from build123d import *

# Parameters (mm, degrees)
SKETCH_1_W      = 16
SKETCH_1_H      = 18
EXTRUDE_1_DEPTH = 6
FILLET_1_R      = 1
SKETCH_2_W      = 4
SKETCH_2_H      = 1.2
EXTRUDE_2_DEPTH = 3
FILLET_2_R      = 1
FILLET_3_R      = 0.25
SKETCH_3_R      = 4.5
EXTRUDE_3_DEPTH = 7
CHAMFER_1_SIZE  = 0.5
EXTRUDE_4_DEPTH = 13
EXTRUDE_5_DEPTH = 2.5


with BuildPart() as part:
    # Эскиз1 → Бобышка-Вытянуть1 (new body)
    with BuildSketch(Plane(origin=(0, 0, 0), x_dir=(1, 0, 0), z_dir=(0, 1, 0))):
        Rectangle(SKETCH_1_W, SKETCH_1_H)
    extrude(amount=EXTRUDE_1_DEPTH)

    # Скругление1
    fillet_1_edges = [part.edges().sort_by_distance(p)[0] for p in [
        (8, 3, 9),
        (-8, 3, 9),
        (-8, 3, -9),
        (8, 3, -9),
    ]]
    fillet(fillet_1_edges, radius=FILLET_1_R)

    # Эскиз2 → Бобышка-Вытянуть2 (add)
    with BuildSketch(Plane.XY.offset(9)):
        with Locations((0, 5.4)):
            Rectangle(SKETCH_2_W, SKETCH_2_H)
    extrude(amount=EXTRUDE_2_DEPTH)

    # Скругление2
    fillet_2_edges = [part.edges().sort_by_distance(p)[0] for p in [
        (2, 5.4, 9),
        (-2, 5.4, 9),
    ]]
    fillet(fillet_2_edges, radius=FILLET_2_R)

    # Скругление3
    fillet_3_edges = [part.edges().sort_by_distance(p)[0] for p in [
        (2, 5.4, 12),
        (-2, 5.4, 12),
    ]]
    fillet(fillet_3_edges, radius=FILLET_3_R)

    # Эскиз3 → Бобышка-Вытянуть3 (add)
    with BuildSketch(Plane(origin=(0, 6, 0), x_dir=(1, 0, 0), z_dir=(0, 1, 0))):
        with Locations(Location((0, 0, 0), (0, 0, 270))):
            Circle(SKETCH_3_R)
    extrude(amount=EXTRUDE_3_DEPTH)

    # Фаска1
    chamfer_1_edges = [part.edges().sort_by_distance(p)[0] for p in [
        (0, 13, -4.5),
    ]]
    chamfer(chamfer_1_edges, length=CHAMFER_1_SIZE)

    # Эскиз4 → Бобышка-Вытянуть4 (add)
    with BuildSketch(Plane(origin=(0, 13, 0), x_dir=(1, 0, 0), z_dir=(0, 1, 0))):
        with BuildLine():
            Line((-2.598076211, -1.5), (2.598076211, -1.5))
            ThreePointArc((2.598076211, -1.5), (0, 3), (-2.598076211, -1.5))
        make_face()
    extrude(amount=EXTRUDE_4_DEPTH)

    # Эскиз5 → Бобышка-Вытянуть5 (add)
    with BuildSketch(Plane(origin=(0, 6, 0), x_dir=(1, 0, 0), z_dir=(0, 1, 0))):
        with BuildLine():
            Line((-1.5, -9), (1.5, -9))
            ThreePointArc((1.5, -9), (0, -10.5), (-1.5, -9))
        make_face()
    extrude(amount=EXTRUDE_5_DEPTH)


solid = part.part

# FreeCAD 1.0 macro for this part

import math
import FreeCAD as App
import Part
import Sketcher
from FreeCAD import Vector


def edges_at(feature, points):
    """Names of the edges that pass closest to the given points."""
    edges = feature.Shape.Edges
    near = lambda p: min(range(len(edges)), key=lambda i: edges[i].distToShape(Part.Vertex(*p))[0])
    return sorted({f"Edge{near(p) + 1}" for p in points})


def add_polygon(sketch, points):
    """Adds a closed chain of lines whose ends are joined by coincident constraints."""
    first, n = sketch.GeometryCount, len(points)
    for a, b in zip(points, points[1:] + points[:1]):
        sketch.addGeometry(Part.LineSegment(App.Vector(*a, 0), App.Vector(*b, 0)), False)
    for i in range(n):
        sketch.addConstraint(Sketcher.Constraint("Coincident", first + i, 2, first + (i + 1) % n, 1))

doc = App.newDocument("Part")
body = doc.addObject("PartDesign::Body", "Body")

sketch1 = body.newObject("Sketcher::SketchObject", "Sketch")
sketch1.AttachmentSupport = (doc.getObject("XZ_Plane"), [""])
sketch1.MapMode = "FlatFace"
add_polygon(sketch1, [(-8, -9), (-8, 9), (8, 9), (8, -9)])
sketch1.addConstraint([
    Sketcher.Constraint("Vertical", 0),
    Sketcher.Constraint("Horizontal", 1),
    Sketcher.Constraint("Vertical", 2),
    Sketcher.Constraint("Horizontal", 3),
    Sketcher.Constraint("Symmetric", 0, 2, 2, 2, -1, 1),
    Sketcher.Constraint("DistanceX", 1, 1, 1, 2, 16.0),
    Sketcher.Constraint("DistanceY", 0, 1, 0, 2, 18.0),
])
pad1 = body.newObject("PartDesign::Pad", "Pad")
pad1.Profile = sketch1
pad1.Length = 6
pad1.Reversed = True
doc.recompute()

fillet = body.newObject("PartDesign::Fillet", "Fillet")
fillet.Base = (pad1, edges_at(pad1, [
    (8, 3, 9),
    (-8, 3, 9),
    (-8, 3, -9),
    (8, 3, -9),
]))
fillet.Radius = 1

sketch2 = body.newObject("Sketcher::SketchObject", "Sketch001")
sketch2.AttachmentSupport = (doc.getObject("XY_Plane"), [""])
sketch2.MapMode = "FlatFace"
sketch2.AttachmentOffset = App.Placement(Vector(0, 0, 9), App.Rotation())
add_polygon(sketch2, [(-2, 6), (-2, 4.8), (2, 4.8), (2, 6)])
sketch2.addConstraint([
    Sketcher.Constraint("Vertical", 0),
    Sketcher.Constraint("Horizontal", 1),
    Sketcher.Constraint("Vertical", 2),
    Sketcher.Constraint("Horizontal", 3),
    Sketcher.Constraint("DistanceX", 1, 1, 1, 2, 4.0),
    Sketcher.Constraint("DistanceY", 0, 2, 0, 1, 1.2),
    Sketcher.Constraint("DistanceX", 0, 2, -1, 1, 2.0),
    Sketcher.Constraint("DistanceY", -1, 1, 2, 2, 6.0),
])
pad2 = body.newObject("PartDesign::Pad", "Pad001")
pad2.Profile = sketch2
pad2.Length = 3
doc.recompute()

fillet2 = body.newObject("PartDesign::Fillet", "Fillet001")
fillet2.Base = (pad2, edges_at(pad2, [(2, 5.4, 9), (-2, 5.4, 9)]))
fillet2.Radius = 1
doc.recompute()

fillet3 = body.newObject("PartDesign::Fillet", "Fillet002")
fillet3.Base = (fillet2, edges_at(fillet2, [(2, 5.4, 12), (-2, 5.4, 12)]))
fillet3.Radius = 0.25

sketch3 = body.newObject("Sketcher::SketchObject", "Sketch002")
sketch3.AttachmentSupport = (doc.getObject("XZ_Plane"), [""])
sketch3.MapMode = "FlatFace"
sketch3.AttachmentOffset = App.Placement(Vector(0, 0, -6), App.Rotation())
sketch3.addGeometry(Part.Circle(Vector(0, 0, 0), Vector(0, 0, 1), 4.5), False)
sketch3.addConstraint([
    Sketcher.Constraint("Coincident", 0, 3, -1, 1),
    Sketcher.Constraint("Diameter", 0, 9.0),
])
pad3 = body.newObject("PartDesign::Pad", "Pad002")
pad3.Profile = sketch3
pad3.Length = 7
pad3.Reversed = True
doc.recompute()

chamfer = body.newObject("PartDesign::Chamfer", "Chamfer")
chamfer.Base = (pad3, edges_at(pad3, [(0, 13, -4.5)]))
chamfer.Size = 0.5

sketch4 = body.newObject("Sketcher::SketchObject", "Sketch003")
sketch4.AttachmentSupport = (doc.getObject("XZ_Plane"), [""])
sketch4.MapMode = "FlatFace"
sketch4.AttachmentOffset = App.Placement(Vector(0, 0, -13), App.Rotation())
sketch4.addGeometry([
    Part.LineSegment(Vector(-2.598076, 1.5, 0), Vector(2.598076, 1.5, 0)),
    Part.ArcOfCircle(Part.Circle(Vector(0, 0, 0), Vector(0, 0, 1), 3), math.radians(150), math.radians(390)),
], False)
sketch4.addConstraint([
    Sketcher.Constraint("Coincident", 0, 1, 1, 1),
    Sketcher.Constraint("Coincident", 1, 2, 0, 2),
    Sketcher.Constraint("Horizontal", 0),
    Sketcher.Constraint("Coincident", 1, 3, -1, 1),
    Sketcher.Constraint("Radius", 1, 3.0),
    Sketcher.Constraint("DistanceY", -1, 1, 0, 1, 1.5),
])
pad4 = body.newObject("PartDesign::Pad", "Pad003")
pad4.Profile = sketch4
pad4.Length = 13
pad4.Reversed = True

sketch5 = body.newObject("Sketcher::SketchObject", "Sketch004")
sketch5.AttachmentSupport = (doc.getObject("XZ_Plane"), [""])
sketch5.MapMode = "FlatFace"
sketch5.AttachmentOffset = App.Placement(Vector(0, 0, -6), App.Rotation())
sketch5.addGeometry([
    Part.LineSegment(Vector(1.5, 9, 0), Vector(-1.5, 9, 0)),
    Part.ArcOfCircle(Part.Circle(Vector(0, 9, 0), Vector(0, 0, 1), 1.5), math.radians(0), math.radians(180)),
], False)
sketch5.addConstraint([
    Sketcher.Constraint("Coincident", 0, 1, 1, 1),
    Sketcher.Constraint("Coincident", 1, 2, 0, 2),
    Sketcher.Constraint("Horizontal", 0),
    Sketcher.Constraint("PointOnObject", 1, 3, -2),
    Sketcher.Constraint("Horizontal", 1, 3, 0, 1),
    Sketcher.Constraint("Radius", 1, 1.5),
    Sketcher.Constraint("DistanceY", -1, 1, 1, 3, 9.0),
])
pad5 = body.newObject("PartDesign::Pad", "Pad004")
pad5.Profile = sketch5
pad5.Length = 2.5
pad5.Reversed = True

doc.recompute()
